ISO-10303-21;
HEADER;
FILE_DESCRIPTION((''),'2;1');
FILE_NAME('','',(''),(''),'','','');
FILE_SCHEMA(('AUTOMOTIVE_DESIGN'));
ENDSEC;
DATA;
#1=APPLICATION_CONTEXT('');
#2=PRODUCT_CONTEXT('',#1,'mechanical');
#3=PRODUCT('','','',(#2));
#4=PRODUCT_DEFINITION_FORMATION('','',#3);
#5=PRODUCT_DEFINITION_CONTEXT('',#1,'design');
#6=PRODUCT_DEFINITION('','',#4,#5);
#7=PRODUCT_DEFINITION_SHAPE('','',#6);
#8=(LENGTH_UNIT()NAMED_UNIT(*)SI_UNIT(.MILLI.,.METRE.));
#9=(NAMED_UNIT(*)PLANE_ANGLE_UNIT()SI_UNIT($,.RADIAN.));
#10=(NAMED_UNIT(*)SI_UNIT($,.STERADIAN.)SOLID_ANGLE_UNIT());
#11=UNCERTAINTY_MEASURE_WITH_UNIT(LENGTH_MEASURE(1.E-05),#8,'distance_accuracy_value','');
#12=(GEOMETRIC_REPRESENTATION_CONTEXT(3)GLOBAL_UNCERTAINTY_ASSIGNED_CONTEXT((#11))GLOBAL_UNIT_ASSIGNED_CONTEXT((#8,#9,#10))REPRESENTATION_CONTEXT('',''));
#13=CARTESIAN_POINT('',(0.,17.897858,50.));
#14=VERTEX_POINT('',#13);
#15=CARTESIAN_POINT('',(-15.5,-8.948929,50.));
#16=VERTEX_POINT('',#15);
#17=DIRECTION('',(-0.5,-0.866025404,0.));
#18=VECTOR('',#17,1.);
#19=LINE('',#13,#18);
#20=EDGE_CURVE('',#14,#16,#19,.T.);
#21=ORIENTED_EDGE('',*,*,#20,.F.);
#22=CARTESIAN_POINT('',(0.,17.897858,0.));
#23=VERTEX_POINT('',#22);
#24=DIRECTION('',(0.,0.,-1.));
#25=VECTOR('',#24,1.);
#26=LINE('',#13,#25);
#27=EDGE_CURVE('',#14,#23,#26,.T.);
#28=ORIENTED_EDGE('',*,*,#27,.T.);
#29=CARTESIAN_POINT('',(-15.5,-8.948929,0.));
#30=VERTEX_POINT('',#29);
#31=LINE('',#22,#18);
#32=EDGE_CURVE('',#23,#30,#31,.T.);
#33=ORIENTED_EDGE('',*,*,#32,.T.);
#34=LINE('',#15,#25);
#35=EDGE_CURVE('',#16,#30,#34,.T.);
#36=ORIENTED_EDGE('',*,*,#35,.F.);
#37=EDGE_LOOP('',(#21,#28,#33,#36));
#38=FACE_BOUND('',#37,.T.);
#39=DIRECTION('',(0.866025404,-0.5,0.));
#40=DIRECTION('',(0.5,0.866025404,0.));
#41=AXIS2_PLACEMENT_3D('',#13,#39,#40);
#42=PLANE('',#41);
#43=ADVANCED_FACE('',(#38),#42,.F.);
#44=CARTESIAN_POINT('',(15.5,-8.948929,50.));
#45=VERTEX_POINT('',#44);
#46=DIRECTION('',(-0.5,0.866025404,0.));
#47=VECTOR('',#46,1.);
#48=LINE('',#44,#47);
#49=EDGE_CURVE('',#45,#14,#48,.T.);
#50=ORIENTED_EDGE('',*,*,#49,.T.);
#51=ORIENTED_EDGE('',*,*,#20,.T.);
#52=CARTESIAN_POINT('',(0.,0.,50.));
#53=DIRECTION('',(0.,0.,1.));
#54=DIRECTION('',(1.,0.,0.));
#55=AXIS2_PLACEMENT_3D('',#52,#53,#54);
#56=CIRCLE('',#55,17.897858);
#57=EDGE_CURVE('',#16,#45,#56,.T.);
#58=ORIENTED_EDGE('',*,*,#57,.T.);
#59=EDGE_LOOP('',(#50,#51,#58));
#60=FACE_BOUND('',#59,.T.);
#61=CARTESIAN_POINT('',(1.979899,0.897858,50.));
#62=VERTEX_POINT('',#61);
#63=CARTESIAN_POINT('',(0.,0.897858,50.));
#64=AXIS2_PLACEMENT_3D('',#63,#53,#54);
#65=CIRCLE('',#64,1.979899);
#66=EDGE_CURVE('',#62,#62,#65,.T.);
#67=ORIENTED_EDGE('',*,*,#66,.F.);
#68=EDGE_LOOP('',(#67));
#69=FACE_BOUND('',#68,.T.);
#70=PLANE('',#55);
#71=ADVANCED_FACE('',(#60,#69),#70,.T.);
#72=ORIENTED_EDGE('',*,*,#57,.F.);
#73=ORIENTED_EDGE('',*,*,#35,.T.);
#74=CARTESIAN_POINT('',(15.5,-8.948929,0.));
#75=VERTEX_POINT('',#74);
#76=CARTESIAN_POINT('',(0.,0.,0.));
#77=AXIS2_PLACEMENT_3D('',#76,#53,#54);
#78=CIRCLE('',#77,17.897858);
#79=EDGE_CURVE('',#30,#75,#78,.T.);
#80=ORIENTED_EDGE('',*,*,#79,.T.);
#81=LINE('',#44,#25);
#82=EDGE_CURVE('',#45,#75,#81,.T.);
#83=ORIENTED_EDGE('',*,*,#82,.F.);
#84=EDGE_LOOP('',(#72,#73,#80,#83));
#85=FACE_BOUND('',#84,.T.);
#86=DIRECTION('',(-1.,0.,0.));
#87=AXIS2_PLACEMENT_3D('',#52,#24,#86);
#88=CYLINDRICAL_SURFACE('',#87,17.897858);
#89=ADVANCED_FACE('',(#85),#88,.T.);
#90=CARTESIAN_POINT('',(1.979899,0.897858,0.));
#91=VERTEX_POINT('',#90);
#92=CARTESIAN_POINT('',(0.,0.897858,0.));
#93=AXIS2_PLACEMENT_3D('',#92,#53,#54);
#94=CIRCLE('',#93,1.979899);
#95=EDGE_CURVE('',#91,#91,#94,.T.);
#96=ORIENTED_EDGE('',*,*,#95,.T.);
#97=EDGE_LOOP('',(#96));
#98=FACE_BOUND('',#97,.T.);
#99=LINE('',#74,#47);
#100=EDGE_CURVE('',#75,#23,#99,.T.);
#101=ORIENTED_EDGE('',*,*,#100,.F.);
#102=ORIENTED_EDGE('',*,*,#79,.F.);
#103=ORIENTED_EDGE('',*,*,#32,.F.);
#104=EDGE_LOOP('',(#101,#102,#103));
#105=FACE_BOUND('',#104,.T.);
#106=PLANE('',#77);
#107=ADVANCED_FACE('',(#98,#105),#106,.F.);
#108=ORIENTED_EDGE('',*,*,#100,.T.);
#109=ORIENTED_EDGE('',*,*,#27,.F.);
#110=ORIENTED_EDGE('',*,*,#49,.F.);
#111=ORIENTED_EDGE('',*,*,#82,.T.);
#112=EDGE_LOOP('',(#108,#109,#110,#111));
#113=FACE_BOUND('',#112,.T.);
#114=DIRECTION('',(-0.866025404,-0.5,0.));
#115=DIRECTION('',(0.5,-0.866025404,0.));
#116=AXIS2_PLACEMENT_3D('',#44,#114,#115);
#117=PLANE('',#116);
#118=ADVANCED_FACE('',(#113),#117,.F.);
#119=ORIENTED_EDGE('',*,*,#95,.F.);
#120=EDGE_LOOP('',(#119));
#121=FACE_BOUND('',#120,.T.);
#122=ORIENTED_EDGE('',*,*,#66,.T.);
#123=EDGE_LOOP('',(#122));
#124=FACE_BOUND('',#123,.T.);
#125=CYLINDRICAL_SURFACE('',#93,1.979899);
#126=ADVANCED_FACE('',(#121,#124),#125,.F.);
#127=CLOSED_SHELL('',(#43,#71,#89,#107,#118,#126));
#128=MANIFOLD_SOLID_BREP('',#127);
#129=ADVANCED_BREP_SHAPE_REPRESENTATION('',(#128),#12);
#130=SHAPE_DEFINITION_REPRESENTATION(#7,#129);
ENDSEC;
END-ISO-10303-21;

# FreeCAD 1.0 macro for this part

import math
import FreeCAD as App
import Part
import Sketcher
Q = App.Units.Quantity

doc = App.newDocument("Part")
params = doc.addObject("Spreadsheet::Sheet", "Params")
for row, (alias, value) in enumerate([
    ("sketch1_length", "31 mm"),
    ("pad1_length", "50 mm"),
    ("pocket1_length", "50 mm"),
], start=1):
    params.set(f"A{row}", alias)
    params.set(f"B{row}", "=" + value)
    params.setAlias(f"B{row}", alias)

body = doc.addObject("PartDesign::Body", "Body")

sketch1 = doc.addObject("Sketcher::SketchObject", "Sketch")
body.addObject(sketch1)
sketch1.AttachmentSupport = (doc.XY_Plane, [""])
sketch1.MapMode = "FlatFace"
sketch1.addGeometry([
    Part.LineSegment(App.Vector(0, 17.897858, 0), App.Vector(-15.5, -8.948929, 0)),
    Part.ArcOfCircle(Part.Circle(App.Vector(0, 0, 0), App.Vector(0, 0, 1), 17.897858), math.radians(-150), math.radians(-30)),
    Part.LineSegment(App.Vector(15.5, -8.948929, 0), App.Vector(0, 17.897858, 0)),
], False)
sketch1.addConstraint([
    Sketcher.Constraint("Coincident", 0, 2, 1, 1),
    Sketcher.Constraint("Coincident", 1, 2, 2, 1),
    Sketcher.Constraint("Coincident", 2, 2, 0, 1),
    Sketcher.Constraint("Coincident", 1, 3, -1, 1),
    Sketcher.Constraint("PointOnObject", 2, 2, -2),
    Sketcher.Constraint("Horizontal", 0, 2, 1, 2),
    Sketcher.Constraint("Angle", 0, Q("-120 deg")),
    Sketcher.Constraint("Distance", 0, Q("31 mm")),
    Sketcher.Constraint("Radius", 1, Q("17.897858 mm")),
])
sketch1.setExpression("Constraints[7]", "Params.sketch1_length")
pad1 = doc.addObject("PartDesign::Pad", "Pad")
body.addObject(pad1)
pad1.Profile = sketch1
pad1.setExpression("Length", "Params.pad1_length")

sketch2 = doc.addObject("Sketcher::SketchObject", "Sketch001")
body.addObject(sketch2)
sketch2.AttachmentSupport = (doc.XY_Plane, [""])
sketch2.MapMode = "FlatFace"
sketch2.AttachmentOffset = App.Placement(App.Vector(0, 0, 50), App.Rotation())
sketch2.addGeometry(Part.Circle(App.Vector(0, 0.897858, 0), App.Vector(0, 0, 1), 1.979899), False)
sketch2.addConstraint([
    Sketcher.Constraint("PointOnObject", 0, 3, -2),
    Sketcher.Constraint("Diameter", 0, Q("3.959798 mm")),
    Sketcher.Constraint("DistanceY", -1, 1, 0, 3, Q("0.897858 mm")),
])
pocket1 = doc.addObject("PartDesign::Pocket", "Pocket")
body.addObject(pocket1)
pocket1.Profile = sketch2
pocket1.setExpression("Length", "Params.pocket1_length")

doc.recompute()
